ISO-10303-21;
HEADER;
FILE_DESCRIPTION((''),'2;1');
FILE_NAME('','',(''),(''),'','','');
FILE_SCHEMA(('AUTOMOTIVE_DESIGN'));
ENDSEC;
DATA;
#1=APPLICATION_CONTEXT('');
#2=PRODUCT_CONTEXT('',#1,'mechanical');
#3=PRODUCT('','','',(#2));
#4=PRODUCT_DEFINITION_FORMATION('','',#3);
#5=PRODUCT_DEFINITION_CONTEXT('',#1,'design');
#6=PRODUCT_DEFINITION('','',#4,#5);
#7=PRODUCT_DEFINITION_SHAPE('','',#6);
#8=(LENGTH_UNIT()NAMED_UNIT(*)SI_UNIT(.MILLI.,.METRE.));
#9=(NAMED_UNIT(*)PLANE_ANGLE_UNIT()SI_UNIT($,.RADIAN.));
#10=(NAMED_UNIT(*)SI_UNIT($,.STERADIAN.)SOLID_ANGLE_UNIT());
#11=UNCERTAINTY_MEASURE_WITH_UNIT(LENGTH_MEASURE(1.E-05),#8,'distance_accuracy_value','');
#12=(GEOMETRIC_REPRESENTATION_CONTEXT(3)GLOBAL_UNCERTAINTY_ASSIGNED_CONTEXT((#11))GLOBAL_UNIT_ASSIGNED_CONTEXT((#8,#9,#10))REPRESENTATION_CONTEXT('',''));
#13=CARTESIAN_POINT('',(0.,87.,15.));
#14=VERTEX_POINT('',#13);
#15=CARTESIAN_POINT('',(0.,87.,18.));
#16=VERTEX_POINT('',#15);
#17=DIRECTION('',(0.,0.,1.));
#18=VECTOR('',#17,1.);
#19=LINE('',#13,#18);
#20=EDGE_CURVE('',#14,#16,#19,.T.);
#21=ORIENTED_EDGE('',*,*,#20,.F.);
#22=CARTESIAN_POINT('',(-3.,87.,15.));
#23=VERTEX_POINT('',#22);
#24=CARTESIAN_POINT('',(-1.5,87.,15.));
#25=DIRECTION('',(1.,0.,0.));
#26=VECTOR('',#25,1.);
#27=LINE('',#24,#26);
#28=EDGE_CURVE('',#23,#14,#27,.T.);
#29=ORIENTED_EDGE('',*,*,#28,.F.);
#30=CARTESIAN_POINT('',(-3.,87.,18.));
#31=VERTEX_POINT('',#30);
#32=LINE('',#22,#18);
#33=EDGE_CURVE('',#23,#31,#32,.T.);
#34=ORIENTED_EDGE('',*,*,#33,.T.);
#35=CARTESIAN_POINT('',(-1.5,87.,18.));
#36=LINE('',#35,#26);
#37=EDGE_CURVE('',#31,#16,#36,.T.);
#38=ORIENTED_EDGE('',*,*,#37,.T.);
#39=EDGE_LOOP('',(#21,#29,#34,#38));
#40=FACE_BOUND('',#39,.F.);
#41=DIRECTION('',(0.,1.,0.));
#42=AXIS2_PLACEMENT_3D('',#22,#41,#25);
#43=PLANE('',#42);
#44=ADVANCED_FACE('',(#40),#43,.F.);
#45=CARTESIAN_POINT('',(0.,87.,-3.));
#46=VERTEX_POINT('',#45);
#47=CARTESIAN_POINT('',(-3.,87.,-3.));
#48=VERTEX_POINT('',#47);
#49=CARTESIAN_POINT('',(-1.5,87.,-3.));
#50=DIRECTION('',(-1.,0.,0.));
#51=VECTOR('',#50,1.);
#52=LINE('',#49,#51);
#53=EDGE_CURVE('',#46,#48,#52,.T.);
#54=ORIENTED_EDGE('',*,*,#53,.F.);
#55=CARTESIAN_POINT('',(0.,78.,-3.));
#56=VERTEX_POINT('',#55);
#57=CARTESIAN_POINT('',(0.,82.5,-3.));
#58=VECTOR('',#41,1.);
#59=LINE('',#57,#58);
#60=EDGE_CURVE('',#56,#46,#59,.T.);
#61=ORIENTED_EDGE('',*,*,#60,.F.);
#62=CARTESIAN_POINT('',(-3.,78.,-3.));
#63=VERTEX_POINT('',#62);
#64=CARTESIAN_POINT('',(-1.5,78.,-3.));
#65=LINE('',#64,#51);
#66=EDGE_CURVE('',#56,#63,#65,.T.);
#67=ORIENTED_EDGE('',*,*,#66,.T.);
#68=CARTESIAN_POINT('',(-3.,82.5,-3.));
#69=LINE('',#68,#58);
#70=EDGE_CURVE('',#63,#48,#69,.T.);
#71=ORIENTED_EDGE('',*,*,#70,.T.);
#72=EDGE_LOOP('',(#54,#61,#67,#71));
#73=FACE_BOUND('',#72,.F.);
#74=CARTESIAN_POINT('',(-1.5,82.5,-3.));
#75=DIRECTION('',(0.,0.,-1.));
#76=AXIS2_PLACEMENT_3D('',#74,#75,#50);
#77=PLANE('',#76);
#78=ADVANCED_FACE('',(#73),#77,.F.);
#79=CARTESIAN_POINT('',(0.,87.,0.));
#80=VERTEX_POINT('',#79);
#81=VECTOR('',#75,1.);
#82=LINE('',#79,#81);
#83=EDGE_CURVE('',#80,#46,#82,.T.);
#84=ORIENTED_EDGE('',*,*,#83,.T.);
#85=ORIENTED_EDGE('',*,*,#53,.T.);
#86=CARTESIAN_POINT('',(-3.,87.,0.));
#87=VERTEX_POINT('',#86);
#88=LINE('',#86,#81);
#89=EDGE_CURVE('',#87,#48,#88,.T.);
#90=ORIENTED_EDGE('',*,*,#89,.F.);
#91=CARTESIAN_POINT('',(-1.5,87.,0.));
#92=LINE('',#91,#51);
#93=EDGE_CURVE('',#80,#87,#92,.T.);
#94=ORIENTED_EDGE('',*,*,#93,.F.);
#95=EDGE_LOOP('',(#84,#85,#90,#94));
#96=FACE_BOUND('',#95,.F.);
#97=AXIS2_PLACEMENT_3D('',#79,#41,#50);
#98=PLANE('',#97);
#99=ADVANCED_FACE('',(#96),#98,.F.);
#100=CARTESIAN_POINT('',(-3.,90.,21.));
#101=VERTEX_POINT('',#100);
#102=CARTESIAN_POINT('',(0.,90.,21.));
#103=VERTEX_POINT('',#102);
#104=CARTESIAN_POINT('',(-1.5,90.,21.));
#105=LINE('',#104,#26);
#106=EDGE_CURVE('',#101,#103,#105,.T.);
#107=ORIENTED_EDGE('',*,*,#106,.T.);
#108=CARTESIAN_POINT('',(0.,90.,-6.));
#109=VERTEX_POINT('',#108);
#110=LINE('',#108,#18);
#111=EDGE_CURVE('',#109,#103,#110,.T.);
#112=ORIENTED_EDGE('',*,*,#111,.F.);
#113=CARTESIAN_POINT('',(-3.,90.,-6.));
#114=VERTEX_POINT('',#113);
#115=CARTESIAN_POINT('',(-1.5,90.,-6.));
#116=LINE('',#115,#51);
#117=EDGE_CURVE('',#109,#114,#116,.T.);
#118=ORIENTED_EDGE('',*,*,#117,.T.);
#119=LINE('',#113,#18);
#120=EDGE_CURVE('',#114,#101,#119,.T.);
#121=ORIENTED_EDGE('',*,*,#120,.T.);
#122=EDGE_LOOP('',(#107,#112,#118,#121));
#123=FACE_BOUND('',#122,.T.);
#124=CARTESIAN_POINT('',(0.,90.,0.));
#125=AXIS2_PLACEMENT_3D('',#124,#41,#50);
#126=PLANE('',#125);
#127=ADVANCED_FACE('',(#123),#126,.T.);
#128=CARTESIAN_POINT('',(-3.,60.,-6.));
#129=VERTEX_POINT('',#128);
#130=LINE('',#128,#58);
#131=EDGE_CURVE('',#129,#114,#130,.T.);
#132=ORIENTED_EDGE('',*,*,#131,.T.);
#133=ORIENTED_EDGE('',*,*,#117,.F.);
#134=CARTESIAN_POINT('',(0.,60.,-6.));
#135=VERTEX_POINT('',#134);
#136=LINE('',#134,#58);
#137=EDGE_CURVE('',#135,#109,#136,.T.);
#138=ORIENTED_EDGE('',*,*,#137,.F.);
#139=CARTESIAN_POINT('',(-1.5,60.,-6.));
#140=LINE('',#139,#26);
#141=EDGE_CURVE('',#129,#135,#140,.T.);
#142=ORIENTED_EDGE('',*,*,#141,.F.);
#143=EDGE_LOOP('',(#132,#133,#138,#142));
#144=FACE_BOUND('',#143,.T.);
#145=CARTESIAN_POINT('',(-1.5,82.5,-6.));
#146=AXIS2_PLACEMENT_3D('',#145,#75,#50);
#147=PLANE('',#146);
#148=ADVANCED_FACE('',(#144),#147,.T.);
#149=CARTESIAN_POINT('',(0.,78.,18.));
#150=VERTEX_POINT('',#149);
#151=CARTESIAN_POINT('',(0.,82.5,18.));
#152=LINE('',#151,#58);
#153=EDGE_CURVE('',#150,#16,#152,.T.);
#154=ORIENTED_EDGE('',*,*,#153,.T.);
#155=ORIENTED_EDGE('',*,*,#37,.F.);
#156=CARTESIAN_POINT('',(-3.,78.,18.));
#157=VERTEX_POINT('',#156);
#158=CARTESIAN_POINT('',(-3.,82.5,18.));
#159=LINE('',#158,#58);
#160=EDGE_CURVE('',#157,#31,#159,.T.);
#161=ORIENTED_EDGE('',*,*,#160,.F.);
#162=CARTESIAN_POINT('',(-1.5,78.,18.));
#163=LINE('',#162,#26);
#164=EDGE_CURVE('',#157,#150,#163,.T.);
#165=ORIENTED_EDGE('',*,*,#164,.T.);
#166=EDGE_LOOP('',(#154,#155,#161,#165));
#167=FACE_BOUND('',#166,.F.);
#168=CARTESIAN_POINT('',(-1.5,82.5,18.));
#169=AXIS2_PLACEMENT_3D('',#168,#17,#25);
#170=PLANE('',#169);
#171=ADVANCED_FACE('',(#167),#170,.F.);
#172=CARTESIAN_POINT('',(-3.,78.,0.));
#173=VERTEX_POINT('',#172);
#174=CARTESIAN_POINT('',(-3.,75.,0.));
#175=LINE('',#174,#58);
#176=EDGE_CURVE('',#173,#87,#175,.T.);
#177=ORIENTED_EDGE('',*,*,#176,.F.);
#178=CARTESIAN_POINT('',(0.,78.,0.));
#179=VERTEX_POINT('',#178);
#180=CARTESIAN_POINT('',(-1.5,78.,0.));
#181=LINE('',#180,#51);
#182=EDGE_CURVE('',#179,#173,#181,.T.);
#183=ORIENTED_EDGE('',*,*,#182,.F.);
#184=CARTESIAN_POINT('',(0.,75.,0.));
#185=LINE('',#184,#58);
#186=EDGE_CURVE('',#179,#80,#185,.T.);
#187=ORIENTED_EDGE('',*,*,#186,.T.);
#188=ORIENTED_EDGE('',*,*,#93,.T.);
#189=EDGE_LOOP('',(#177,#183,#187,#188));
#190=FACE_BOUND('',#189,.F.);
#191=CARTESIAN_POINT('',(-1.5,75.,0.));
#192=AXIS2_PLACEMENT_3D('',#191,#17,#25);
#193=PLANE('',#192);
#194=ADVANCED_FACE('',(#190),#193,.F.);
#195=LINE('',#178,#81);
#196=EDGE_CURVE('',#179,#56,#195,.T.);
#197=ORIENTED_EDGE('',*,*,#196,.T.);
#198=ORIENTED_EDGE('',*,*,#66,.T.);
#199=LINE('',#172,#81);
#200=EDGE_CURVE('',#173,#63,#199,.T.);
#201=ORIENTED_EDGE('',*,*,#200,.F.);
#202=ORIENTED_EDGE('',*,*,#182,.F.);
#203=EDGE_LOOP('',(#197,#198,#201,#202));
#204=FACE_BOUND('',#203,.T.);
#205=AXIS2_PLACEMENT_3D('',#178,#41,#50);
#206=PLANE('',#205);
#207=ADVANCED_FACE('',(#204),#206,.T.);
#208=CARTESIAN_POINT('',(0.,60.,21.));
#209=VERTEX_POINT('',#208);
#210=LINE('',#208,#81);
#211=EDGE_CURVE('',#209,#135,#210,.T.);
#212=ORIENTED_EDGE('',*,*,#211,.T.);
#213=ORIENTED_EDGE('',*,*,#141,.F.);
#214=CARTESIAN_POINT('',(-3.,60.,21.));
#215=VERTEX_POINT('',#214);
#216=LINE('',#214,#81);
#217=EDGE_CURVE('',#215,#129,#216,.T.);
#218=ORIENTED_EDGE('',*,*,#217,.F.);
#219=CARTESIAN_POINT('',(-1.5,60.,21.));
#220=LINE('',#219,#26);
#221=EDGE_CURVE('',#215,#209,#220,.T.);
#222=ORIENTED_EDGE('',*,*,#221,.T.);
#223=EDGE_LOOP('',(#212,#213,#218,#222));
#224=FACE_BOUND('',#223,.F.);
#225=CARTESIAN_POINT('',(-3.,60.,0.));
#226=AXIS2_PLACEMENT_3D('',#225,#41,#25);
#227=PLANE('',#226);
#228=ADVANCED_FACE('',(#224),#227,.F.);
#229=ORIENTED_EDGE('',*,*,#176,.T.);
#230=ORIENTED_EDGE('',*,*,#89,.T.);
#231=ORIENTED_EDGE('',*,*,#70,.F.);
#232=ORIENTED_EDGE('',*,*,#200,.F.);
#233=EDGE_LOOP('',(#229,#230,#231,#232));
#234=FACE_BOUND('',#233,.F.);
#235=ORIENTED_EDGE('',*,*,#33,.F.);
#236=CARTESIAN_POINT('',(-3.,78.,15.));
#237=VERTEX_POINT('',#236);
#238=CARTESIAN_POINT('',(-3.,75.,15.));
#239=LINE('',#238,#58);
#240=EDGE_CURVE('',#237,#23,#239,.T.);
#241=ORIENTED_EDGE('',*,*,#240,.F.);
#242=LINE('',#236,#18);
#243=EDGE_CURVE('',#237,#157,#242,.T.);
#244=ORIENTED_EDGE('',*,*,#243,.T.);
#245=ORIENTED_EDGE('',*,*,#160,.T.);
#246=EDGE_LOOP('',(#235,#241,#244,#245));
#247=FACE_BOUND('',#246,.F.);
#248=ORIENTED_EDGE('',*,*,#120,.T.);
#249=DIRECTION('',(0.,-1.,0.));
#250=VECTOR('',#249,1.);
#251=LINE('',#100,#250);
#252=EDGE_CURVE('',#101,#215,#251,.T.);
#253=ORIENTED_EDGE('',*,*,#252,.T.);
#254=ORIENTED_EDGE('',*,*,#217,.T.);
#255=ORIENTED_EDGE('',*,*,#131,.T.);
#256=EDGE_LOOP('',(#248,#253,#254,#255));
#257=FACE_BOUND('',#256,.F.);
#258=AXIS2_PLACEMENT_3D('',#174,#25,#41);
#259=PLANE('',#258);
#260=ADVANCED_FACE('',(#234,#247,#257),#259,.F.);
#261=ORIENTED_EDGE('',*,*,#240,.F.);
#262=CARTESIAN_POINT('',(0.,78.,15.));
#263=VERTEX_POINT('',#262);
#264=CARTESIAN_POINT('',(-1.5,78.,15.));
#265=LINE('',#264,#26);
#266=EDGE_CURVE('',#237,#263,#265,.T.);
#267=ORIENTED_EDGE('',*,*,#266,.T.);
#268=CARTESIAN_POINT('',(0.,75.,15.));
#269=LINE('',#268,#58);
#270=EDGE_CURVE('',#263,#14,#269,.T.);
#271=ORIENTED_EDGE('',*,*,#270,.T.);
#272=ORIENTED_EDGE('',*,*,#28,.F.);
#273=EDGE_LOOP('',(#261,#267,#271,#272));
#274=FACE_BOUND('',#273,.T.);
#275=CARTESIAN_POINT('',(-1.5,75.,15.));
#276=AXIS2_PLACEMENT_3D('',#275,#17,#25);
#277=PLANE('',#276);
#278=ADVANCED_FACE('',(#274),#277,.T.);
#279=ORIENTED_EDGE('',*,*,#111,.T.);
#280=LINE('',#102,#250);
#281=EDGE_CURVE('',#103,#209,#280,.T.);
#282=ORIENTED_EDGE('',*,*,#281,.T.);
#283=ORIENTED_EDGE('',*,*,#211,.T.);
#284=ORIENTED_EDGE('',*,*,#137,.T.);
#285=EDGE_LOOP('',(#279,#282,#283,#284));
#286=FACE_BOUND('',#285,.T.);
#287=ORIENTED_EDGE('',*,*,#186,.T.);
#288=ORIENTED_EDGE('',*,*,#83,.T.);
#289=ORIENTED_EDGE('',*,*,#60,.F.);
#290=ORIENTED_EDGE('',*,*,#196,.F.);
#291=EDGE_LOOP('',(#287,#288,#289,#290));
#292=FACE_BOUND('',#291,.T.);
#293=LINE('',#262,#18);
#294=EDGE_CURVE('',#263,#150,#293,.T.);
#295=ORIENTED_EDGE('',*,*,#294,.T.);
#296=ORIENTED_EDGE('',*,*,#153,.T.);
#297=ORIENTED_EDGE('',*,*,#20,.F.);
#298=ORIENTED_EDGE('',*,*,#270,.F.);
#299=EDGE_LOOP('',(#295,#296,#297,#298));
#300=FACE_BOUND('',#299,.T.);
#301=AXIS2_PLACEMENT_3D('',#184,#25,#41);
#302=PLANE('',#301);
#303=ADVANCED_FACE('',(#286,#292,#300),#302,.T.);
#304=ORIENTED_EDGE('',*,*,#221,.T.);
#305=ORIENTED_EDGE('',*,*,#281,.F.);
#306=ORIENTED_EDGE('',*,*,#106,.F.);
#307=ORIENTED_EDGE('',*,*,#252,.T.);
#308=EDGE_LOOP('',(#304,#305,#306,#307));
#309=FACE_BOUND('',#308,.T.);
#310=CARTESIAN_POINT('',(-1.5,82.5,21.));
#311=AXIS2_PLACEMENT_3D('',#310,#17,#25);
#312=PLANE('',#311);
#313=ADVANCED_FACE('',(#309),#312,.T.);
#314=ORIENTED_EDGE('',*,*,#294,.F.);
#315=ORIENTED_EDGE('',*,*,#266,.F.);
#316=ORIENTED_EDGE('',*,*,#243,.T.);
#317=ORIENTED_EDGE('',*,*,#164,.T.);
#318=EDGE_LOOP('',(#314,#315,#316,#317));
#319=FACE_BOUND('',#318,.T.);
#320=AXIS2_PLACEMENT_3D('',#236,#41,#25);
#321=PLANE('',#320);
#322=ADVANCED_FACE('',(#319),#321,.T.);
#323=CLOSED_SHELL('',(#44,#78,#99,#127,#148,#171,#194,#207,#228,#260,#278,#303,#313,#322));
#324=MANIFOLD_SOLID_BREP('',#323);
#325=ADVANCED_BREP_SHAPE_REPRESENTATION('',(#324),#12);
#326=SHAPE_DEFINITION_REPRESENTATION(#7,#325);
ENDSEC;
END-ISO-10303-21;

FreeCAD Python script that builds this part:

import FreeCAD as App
import Part
import Sketcher

V = App.Vector
Q = App.Units.Quantity


def add_polygon(sketch, points):
    """Adds a closed chain of lines whose ends are joined by coincident constraints."""
    first, n = sketch.GeometryCount, len(points)
    for a, b in zip(points, points[1:] + points[:1]):
        sketch.addGeometry(Part.LineSegment(App.Vector(*a, 0), App.Vector(*b, 0)), False)
    for i in range(n):
        sketch.addConstraint(Sketcher.Constraint("Coincident", first + i, 2, first + (i + 1) % n, 1))

doc = App.newDocument("Part")
body = doc.addObject("PartDesign::Body", "Body")

# Sketch on XY plane
sketch1 = doc.addObject("Sketcher::SketchObject", "Sketch")
body.addObject(sketch1)
sketch1.AttachmentSupport = (doc.XY_Plane, [""])
sketch1.MapMode = "FlatFace"
sketch1.AttachmentOffset = App.Placement(V(0, 0, 15), App.Rotation())
add_polygon(sketch1, [(-3, 75), (-3, 60), (0, 60), (0, 75)])  # lines 0-3
sketch1.addConstraint([
    Sketcher.Constraint("Vertical", 0),
    Sketcher.Constraint("Horizontal", 1),
    Sketcher.Constraint("Vertical", 2),
    Sketcher.Constraint("Horizontal", 3),
    Sketcher.Constraint("PointOnObject", 1, 2, -2),
    Sketcher.Constraint("DistanceX", 1, 1, 1, 2, Q("3 mm")),
    Sketcher.Constraint("DistanceY", 0, 2, 0, 1, Q("15 mm")),
    Sketcher.Constraint("DistanceY", -1, 1, 0, 2, Q("60 mm")),
])
pad1 = doc.addObject("PartDesign::Pad", "Pad")
body.addObject(pad1)
pad1.Profile = sketch1
pad1.Length = 6
body2 = doc.addObject("PartDesign::Body", "Body001")

# Sketch on XY plane
sketch2 = doc.addObject("Sketcher::SketchObject", "Sketch001")
body2.addObject(sketch2)
sketch2.AttachmentSupport = (doc.getObject("XY_Plane001"), [""])
sketch2.MapMode = "FlatFace"
add_polygon(sketch2, [(0, 12), (0, 3), (3, 3), (3, 12)])  # lines 0-3
sketch2.addConstraint([
    Sketcher.Constraint("Vertical", 0),
    Sketcher.Constraint("Horizontal", 1),
    Sketcher.Constraint("Vertical", 2),
    Sketcher.Constraint("Horizontal", 3),
    Sketcher.Constraint("PointOnObject", 0, 2, -2),
    Sketcher.Constraint("DistanceX", 1, 1, 1, 2, Q("3 mm")),
    Sketcher.Constraint("DistanceY", 0, 2, 0, 1, Q("9 mm")),
    Sketcher.Constraint("DistanceY", -1, 1, 0, 2, Q("3 mm")),
])
pad2 = doc.addObject("PartDesign::Pad", "Pad001")
body2.addObject(pad2)
pad2.Profile = sketch2
pad2.Length = 3
body3 = doc.addObject("PartDesign::Body", "Body002")

# Sketch on XY plane
sketch3 = doc.addObject("Sketcher::SketchObject", "Sketch002")
body3.addObject(sketch3)
sketch3.AttachmentSupport = (doc.getObject("XY_Plane002"), [""])
sketch3.MapMode = "FlatFace"
add_polygon(sketch3, [(0, 15), (0, 0), (3, 0), (3, 15)])  # lines 0-3
sketch3.addConstraint([
    Sketcher.Constraint("Vertical", 0),
    Sketcher.Constraint("Horizontal", 1),
    Sketcher.Constraint("Vertical", 2),
    Sketcher.Constraint("Horizontal", 3),
    Sketcher.Constraint("Coincident", 0, 2, -1, 1),
    Sketcher.Constraint("DistanceX", 1, 1, 1, 2, Q("3 mm")),
    Sketcher.Constraint("DistanceY", 0, 2, 0, 1, Q("15 mm")),
])
pad3 = doc.addObject("PartDesign::Pad", "Pad002")
body3.addObject(pad3)
pad3.Profile = sketch3
pad3.Length = 6
doc.recompute()

boolean = doc.addObject("PartDesign::Boolean", "Boolean")
body3.addObject(boolean)
boolean.Type = "Cut"
boolean.addObjects([body2])
body4 = doc.addObject("PartDesign::Body", "Body003")
doc.recompute()

body3.Placement = App.Placement(V(30, 75, 15), App.Rotation(V(0, 0, 1), 0))
boolean2 = doc.addObject("PartDesign::Boolean", "Boolean001")
body4.addObject(boolean2)
boolean2.Type = "Fuse"
boolean2.addObjects([body3])
body5 = doc.addObject("PartDesign::Body", "Body004")

# Sketch on XY plane
sketch4 = doc.addObject("Sketcher::SketchObject", "Sketch003")
body5.addObject(sketch4)
sketch4.AttachmentSupport = (doc.getObject("XY_Plane004"), [""])
sketch4.MapMode = "FlatFace"
add_polygon(sketch4, [(0, 12), (0, 3), (3, 3), (3, 12)])  # lines 0-3
sketch4.addConstraint([
    Sketcher.Constraint("Vertical", 0),
    Sketcher.Constraint("Horizontal", 1),
    Sketcher.Constraint("Vertical", 2),
    Sketcher.Constraint("Horizontal", 3),
    Sketcher.Constraint("PointOnObject", 0, 2, -2),
    Sketcher.Constraint("DistanceX", 1, 1, 1, 2, Q("3 mm")),
    Sketcher.Constraint("DistanceY", 0, 2, 0, 1, Q("9 mm")),
    Sketcher.Constraint("DistanceY", -1, 1, 0, 2, Q("3 mm")),
])
pad4 = doc.addObject("PartDesign::Pad", "Pad003")
body5.addObject(pad4)
pad4.Profile = sketch4
pad4.Length = 3
body6 = doc.addObject("PartDesign::Body", "Body005")

# Sketch on XY plane
sketch5 = doc.addObject("Sketcher::SketchObject", "Sketch004")
body6.addObject(sketch5)
sketch5.AttachmentSupport = (doc.getObject("XY_Plane005"), [""])
sketch5.MapMode = "FlatFace"
add_polygon(sketch5, [(0, 15), (0, 0), (3, 0), (3, 15)])  # lines 0-3
sketch5.addConstraint([
    Sketcher.Constraint("Vertical", 0),
    Sketcher.Constraint("Horizontal", 1),
    Sketcher.Constraint("Vertical", 2),
    Sketcher.Constraint("Horizontal", 3),
    Sketcher.Constraint("Coincident", 0, 2, -1, 1),
    Sketcher.Constraint("DistanceX", 1, 1, 1, 2, Q("3 mm")),
    Sketcher.Constraint("DistanceY", 0, 2, 0, 1, Q("15 mm")),
])
pad5 = doc.addObject("PartDesign::Pad", "Pad004")
body6.addObject(pad5)
pad5.Profile = sketch5
pad5.Length = 6
doc.recompute()

boolean3 = doc.addObject("PartDesign::Boolean", "Boolean002")
body6.addObject(boolean3)
boolean3.Type = "Cut"
boolean3.addObjects([body5])
body7 = doc.addObject("PartDesign::Body", "Body006")
doc.recompute()

body6.Placement = App.Placement(V(33, 75, 0), App.Rotation(V(0, 1, 0), 180))
boolean4 = doc.addObject("PartDesign::Boolean", "Boolean003")
body7.addObject(boolean4)
boolean4.Type = "Fuse"
boolean4.addObjects([body6])
body8 = doc.addObject("PartDesign::Body", "Body007")

# Sketch on XY plane
sketch6 = doc.addObject("Sketcher::SketchObject", "Sketch005")
body8.addObject(sketch6)
sketch6.AttachmentSupport = (doc.getObject("XY_Plane007"), [""])
sketch6.MapMode = "FlatFace"
add_polygon(sketch6, [(30, 90), (30, 60), (33, 60), (33, 90)])  # lines 0-3
sketch6.addConstraint([
    Sketcher.Constraint("Vertical", 0),
    Sketcher.Constraint("Horizontal", 1),
    Sketcher.Constraint("Vertical", 2),
    Sketcher.Constraint("Horizontal", 3),
    Sketcher.Constraint("DistanceX", 1, 1, 1, 2, Q("3 mm")),
    Sketcher.Constraint("DistanceY", 0, 2, 0, 1, Q("30 mm")),
    Sketcher.Constraint("DistanceX", -1, 1, 0, 2, Q("30 mm")),
    Sketcher.Constraint("DistanceY", -1, 1, 0, 2, Q("60 mm")),
])
pad6 = doc.addObject("PartDesign::Pad", "Pad005")
body8.addObject(pad6)
pad6.Profile = sketch6
pad6.Length = 15
doc.recompute()

boolean5 = doc.addObject("PartDesign::Boolean", "Boolean004")
body8.addObject(boolean5)
boolean5.Type = "Fuse"
boolean5.addObjects([body4])
doc.recompute()

boolean6 = doc.addObject("PartDesign::Boolean", "Boolean005")
body8.addObject(boolean6)
boolean6.Type = "Fuse"
boolean6.addObjects([body7])
body9 = doc.addObject("PartDesign::Body", "Body008")
doc.recompute()

body8.Placement = App.Placement(V(-33, 0, 0), App.Rotation(V(0, 0, 1), 0))
boolean7 = doc.addObject("PartDesign::Boolean", "Boolean006")
body9.addObject(boolean7)
boolean7.Type = "Fuse"
boolean7.addObjects([body8])
body10 = doc.addObject("PartDesign::Body", "Body009")
body10.AllowCompound = True

# Sketch on XY plane
sketch7 = doc.addObject("Sketcher::SketchObject", "Sketch006")
body10.addObject(sketch7)
sketch7.AttachmentSupport = (doc.getObject("XY_Plane009"), [""])
sketch7.MapMode = "FlatFace"
sketch7.AttachmentOffset = App.Placement(V(0, 0, -6), App.Rotation())
add_polygon(sketch7, [(-3, 75), (-3, 60), (0, 60), (0, 75)])  # lines 0-3
sketch7.addConstraint([
    Sketcher.Constraint("Vertical", 0),
    Sketcher.Constraint("Horizontal", 1),
    Sketcher.Constraint("Vertical", 2),
    Sketcher.Constraint("Horizontal", 3),
    Sketcher.Constraint("PointOnObject", 1, 2, -2),
    Sketcher.Constraint("DistanceX", 1, 1, 1, 2, Q("3 mm")),
    Sketcher.Constraint("DistanceY", 0, 2, 0, 1, Q("15 mm")),
    Sketcher.Constraint("DistanceY", -1, 1, 0, 2, Q("60 mm")),
])
pad7 = doc.addObject("PartDesign::Pad", "Pad006")
body10.addObject(pad7)
pad7.Profile = sketch7
pad7.Length = 6
doc.recompute()

boolean8 = doc.addObject("PartDesign::Boolean", "Boolean007")
body10.addObject(boolean8)
boolean8.Type = "Fuse"
boolean8.addObjects([body])
doc.recompute()

boolean9 = doc.addObject("PartDesign::Boolean", "Boolean008")
body10.addObject(boolean9)
boolean9.Type = "Fuse"
boolean9.addObjects([body9])

doc.recompute()
